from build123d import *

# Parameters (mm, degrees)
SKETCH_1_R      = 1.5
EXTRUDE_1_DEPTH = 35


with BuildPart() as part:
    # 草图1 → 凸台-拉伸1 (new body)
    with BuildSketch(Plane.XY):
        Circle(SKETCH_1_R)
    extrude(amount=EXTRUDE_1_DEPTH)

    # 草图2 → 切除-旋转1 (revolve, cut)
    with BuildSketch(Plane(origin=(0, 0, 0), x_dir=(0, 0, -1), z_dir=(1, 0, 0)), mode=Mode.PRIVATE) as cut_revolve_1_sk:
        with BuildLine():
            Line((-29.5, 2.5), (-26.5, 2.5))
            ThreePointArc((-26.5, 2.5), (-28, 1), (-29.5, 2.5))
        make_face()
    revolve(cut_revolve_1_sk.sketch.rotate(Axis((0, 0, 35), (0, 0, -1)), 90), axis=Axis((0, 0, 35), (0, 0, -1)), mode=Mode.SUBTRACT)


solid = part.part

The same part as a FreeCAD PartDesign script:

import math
import FreeCAD as App
import Part
import Sketcher
from FreeCAD import Vector
Q = App.Units.Quantity

doc = App.newDocument("Part")
params = doc.addObject("Spreadsheet::Sheet", "Params")
for row, (alias, value) in enumerate([
    ("sketch1_diameter", "3 mm"),
    ("pad1_length", "35 mm"),
    ("sketch2_radius", "1.5 mm"),
    ("groove_angle", "360 deg"),
], start=1):
    params.set(f"A{row}", alias)
    params.set(f"B{row}", "=" + value)
    params.setAlias(f"B{row}", alias)

body = doc.addObject("PartDesign::Body", "Body")

sketch1 = body.newObject("Sketcher::SketchObject", "Sketch")
sketch1.AttachmentSupport = (doc.getObject("XY_Plane"), [""])
sketch1.MapMode = "FlatFace"
sketch1.addGeometry(Part.Circle(Vector(0, 0, 0), Vector(0, 0, 1), 1.5), False)
sketch1.addConstraint(Sketcher.Constraint("Coincident", 0, 3, -1, 1))
sketch1.addConstraint(Sketcher.Constraint("Diameter", 0, Q("3 mm")))
sketch1.setExpression("Constraints[1]", "Params.sketch1_diameter")
pad1 = body.newObject("PartDesign::Pad", "Pad")
pad1.Profile = sketch1
pad1.setExpression("Length", "Params.pad1_length")

sketch2 = body.newObject("Sketcher::SketchObject", "Sketch001")
sketch2.AttachmentSupport = (doc.getObject("YZ_Plane"), [""])
sketch2.MapMode = "FlatFace"
sketch2.addGeometry(Part.LineSegment(Vector(2.5, 26.5, 0), Vector(2.5, 29.5, 0)), False)
sketch2.addGeometry(Part.ArcOfCircle(Part.Circle(Vector(2.5, 28, 0), Vector(0, 0, 1), 1.5), math.radians(90), math.radians(270)), False)
sketch2.addConstraint(Sketcher.Constraint("Coincident", 0, 1, 1, 2))
sketch2.addConstraint(Sketcher.Constraint("Coincident", 1, 1, 0, 2))
sketch2.addConstraint(Sketcher.Constraint("Vertical", 0))
sketch2.addConstraint(Sketcher.Constraint("Vertical", 1, 3, 0, 1))
sketch2.addConstraint(Sketcher.Constraint("Radius", 1, Q("1.5 mm")))
sketch2.addConstraint(Sketcher.Constraint("DistanceY", -1, 1, 1, 3, Q("28 mm")))
sketch2.addConstraint(Sketcher.Constraint("DistanceX", -1, 1, 1, 3, Q("2.5 mm")))
sketch2.setExpression("Constraints[4]", "Params.sketch2_radius")
groove = body.newObject("PartDesign::Groove", "Groove")
groove.Profile = sketch2
groove.ReferenceAxis = (sketch2, ["V_Axis"])
groove.setExpression("Angle", "Params.groove_angle")

doc.recompute()
